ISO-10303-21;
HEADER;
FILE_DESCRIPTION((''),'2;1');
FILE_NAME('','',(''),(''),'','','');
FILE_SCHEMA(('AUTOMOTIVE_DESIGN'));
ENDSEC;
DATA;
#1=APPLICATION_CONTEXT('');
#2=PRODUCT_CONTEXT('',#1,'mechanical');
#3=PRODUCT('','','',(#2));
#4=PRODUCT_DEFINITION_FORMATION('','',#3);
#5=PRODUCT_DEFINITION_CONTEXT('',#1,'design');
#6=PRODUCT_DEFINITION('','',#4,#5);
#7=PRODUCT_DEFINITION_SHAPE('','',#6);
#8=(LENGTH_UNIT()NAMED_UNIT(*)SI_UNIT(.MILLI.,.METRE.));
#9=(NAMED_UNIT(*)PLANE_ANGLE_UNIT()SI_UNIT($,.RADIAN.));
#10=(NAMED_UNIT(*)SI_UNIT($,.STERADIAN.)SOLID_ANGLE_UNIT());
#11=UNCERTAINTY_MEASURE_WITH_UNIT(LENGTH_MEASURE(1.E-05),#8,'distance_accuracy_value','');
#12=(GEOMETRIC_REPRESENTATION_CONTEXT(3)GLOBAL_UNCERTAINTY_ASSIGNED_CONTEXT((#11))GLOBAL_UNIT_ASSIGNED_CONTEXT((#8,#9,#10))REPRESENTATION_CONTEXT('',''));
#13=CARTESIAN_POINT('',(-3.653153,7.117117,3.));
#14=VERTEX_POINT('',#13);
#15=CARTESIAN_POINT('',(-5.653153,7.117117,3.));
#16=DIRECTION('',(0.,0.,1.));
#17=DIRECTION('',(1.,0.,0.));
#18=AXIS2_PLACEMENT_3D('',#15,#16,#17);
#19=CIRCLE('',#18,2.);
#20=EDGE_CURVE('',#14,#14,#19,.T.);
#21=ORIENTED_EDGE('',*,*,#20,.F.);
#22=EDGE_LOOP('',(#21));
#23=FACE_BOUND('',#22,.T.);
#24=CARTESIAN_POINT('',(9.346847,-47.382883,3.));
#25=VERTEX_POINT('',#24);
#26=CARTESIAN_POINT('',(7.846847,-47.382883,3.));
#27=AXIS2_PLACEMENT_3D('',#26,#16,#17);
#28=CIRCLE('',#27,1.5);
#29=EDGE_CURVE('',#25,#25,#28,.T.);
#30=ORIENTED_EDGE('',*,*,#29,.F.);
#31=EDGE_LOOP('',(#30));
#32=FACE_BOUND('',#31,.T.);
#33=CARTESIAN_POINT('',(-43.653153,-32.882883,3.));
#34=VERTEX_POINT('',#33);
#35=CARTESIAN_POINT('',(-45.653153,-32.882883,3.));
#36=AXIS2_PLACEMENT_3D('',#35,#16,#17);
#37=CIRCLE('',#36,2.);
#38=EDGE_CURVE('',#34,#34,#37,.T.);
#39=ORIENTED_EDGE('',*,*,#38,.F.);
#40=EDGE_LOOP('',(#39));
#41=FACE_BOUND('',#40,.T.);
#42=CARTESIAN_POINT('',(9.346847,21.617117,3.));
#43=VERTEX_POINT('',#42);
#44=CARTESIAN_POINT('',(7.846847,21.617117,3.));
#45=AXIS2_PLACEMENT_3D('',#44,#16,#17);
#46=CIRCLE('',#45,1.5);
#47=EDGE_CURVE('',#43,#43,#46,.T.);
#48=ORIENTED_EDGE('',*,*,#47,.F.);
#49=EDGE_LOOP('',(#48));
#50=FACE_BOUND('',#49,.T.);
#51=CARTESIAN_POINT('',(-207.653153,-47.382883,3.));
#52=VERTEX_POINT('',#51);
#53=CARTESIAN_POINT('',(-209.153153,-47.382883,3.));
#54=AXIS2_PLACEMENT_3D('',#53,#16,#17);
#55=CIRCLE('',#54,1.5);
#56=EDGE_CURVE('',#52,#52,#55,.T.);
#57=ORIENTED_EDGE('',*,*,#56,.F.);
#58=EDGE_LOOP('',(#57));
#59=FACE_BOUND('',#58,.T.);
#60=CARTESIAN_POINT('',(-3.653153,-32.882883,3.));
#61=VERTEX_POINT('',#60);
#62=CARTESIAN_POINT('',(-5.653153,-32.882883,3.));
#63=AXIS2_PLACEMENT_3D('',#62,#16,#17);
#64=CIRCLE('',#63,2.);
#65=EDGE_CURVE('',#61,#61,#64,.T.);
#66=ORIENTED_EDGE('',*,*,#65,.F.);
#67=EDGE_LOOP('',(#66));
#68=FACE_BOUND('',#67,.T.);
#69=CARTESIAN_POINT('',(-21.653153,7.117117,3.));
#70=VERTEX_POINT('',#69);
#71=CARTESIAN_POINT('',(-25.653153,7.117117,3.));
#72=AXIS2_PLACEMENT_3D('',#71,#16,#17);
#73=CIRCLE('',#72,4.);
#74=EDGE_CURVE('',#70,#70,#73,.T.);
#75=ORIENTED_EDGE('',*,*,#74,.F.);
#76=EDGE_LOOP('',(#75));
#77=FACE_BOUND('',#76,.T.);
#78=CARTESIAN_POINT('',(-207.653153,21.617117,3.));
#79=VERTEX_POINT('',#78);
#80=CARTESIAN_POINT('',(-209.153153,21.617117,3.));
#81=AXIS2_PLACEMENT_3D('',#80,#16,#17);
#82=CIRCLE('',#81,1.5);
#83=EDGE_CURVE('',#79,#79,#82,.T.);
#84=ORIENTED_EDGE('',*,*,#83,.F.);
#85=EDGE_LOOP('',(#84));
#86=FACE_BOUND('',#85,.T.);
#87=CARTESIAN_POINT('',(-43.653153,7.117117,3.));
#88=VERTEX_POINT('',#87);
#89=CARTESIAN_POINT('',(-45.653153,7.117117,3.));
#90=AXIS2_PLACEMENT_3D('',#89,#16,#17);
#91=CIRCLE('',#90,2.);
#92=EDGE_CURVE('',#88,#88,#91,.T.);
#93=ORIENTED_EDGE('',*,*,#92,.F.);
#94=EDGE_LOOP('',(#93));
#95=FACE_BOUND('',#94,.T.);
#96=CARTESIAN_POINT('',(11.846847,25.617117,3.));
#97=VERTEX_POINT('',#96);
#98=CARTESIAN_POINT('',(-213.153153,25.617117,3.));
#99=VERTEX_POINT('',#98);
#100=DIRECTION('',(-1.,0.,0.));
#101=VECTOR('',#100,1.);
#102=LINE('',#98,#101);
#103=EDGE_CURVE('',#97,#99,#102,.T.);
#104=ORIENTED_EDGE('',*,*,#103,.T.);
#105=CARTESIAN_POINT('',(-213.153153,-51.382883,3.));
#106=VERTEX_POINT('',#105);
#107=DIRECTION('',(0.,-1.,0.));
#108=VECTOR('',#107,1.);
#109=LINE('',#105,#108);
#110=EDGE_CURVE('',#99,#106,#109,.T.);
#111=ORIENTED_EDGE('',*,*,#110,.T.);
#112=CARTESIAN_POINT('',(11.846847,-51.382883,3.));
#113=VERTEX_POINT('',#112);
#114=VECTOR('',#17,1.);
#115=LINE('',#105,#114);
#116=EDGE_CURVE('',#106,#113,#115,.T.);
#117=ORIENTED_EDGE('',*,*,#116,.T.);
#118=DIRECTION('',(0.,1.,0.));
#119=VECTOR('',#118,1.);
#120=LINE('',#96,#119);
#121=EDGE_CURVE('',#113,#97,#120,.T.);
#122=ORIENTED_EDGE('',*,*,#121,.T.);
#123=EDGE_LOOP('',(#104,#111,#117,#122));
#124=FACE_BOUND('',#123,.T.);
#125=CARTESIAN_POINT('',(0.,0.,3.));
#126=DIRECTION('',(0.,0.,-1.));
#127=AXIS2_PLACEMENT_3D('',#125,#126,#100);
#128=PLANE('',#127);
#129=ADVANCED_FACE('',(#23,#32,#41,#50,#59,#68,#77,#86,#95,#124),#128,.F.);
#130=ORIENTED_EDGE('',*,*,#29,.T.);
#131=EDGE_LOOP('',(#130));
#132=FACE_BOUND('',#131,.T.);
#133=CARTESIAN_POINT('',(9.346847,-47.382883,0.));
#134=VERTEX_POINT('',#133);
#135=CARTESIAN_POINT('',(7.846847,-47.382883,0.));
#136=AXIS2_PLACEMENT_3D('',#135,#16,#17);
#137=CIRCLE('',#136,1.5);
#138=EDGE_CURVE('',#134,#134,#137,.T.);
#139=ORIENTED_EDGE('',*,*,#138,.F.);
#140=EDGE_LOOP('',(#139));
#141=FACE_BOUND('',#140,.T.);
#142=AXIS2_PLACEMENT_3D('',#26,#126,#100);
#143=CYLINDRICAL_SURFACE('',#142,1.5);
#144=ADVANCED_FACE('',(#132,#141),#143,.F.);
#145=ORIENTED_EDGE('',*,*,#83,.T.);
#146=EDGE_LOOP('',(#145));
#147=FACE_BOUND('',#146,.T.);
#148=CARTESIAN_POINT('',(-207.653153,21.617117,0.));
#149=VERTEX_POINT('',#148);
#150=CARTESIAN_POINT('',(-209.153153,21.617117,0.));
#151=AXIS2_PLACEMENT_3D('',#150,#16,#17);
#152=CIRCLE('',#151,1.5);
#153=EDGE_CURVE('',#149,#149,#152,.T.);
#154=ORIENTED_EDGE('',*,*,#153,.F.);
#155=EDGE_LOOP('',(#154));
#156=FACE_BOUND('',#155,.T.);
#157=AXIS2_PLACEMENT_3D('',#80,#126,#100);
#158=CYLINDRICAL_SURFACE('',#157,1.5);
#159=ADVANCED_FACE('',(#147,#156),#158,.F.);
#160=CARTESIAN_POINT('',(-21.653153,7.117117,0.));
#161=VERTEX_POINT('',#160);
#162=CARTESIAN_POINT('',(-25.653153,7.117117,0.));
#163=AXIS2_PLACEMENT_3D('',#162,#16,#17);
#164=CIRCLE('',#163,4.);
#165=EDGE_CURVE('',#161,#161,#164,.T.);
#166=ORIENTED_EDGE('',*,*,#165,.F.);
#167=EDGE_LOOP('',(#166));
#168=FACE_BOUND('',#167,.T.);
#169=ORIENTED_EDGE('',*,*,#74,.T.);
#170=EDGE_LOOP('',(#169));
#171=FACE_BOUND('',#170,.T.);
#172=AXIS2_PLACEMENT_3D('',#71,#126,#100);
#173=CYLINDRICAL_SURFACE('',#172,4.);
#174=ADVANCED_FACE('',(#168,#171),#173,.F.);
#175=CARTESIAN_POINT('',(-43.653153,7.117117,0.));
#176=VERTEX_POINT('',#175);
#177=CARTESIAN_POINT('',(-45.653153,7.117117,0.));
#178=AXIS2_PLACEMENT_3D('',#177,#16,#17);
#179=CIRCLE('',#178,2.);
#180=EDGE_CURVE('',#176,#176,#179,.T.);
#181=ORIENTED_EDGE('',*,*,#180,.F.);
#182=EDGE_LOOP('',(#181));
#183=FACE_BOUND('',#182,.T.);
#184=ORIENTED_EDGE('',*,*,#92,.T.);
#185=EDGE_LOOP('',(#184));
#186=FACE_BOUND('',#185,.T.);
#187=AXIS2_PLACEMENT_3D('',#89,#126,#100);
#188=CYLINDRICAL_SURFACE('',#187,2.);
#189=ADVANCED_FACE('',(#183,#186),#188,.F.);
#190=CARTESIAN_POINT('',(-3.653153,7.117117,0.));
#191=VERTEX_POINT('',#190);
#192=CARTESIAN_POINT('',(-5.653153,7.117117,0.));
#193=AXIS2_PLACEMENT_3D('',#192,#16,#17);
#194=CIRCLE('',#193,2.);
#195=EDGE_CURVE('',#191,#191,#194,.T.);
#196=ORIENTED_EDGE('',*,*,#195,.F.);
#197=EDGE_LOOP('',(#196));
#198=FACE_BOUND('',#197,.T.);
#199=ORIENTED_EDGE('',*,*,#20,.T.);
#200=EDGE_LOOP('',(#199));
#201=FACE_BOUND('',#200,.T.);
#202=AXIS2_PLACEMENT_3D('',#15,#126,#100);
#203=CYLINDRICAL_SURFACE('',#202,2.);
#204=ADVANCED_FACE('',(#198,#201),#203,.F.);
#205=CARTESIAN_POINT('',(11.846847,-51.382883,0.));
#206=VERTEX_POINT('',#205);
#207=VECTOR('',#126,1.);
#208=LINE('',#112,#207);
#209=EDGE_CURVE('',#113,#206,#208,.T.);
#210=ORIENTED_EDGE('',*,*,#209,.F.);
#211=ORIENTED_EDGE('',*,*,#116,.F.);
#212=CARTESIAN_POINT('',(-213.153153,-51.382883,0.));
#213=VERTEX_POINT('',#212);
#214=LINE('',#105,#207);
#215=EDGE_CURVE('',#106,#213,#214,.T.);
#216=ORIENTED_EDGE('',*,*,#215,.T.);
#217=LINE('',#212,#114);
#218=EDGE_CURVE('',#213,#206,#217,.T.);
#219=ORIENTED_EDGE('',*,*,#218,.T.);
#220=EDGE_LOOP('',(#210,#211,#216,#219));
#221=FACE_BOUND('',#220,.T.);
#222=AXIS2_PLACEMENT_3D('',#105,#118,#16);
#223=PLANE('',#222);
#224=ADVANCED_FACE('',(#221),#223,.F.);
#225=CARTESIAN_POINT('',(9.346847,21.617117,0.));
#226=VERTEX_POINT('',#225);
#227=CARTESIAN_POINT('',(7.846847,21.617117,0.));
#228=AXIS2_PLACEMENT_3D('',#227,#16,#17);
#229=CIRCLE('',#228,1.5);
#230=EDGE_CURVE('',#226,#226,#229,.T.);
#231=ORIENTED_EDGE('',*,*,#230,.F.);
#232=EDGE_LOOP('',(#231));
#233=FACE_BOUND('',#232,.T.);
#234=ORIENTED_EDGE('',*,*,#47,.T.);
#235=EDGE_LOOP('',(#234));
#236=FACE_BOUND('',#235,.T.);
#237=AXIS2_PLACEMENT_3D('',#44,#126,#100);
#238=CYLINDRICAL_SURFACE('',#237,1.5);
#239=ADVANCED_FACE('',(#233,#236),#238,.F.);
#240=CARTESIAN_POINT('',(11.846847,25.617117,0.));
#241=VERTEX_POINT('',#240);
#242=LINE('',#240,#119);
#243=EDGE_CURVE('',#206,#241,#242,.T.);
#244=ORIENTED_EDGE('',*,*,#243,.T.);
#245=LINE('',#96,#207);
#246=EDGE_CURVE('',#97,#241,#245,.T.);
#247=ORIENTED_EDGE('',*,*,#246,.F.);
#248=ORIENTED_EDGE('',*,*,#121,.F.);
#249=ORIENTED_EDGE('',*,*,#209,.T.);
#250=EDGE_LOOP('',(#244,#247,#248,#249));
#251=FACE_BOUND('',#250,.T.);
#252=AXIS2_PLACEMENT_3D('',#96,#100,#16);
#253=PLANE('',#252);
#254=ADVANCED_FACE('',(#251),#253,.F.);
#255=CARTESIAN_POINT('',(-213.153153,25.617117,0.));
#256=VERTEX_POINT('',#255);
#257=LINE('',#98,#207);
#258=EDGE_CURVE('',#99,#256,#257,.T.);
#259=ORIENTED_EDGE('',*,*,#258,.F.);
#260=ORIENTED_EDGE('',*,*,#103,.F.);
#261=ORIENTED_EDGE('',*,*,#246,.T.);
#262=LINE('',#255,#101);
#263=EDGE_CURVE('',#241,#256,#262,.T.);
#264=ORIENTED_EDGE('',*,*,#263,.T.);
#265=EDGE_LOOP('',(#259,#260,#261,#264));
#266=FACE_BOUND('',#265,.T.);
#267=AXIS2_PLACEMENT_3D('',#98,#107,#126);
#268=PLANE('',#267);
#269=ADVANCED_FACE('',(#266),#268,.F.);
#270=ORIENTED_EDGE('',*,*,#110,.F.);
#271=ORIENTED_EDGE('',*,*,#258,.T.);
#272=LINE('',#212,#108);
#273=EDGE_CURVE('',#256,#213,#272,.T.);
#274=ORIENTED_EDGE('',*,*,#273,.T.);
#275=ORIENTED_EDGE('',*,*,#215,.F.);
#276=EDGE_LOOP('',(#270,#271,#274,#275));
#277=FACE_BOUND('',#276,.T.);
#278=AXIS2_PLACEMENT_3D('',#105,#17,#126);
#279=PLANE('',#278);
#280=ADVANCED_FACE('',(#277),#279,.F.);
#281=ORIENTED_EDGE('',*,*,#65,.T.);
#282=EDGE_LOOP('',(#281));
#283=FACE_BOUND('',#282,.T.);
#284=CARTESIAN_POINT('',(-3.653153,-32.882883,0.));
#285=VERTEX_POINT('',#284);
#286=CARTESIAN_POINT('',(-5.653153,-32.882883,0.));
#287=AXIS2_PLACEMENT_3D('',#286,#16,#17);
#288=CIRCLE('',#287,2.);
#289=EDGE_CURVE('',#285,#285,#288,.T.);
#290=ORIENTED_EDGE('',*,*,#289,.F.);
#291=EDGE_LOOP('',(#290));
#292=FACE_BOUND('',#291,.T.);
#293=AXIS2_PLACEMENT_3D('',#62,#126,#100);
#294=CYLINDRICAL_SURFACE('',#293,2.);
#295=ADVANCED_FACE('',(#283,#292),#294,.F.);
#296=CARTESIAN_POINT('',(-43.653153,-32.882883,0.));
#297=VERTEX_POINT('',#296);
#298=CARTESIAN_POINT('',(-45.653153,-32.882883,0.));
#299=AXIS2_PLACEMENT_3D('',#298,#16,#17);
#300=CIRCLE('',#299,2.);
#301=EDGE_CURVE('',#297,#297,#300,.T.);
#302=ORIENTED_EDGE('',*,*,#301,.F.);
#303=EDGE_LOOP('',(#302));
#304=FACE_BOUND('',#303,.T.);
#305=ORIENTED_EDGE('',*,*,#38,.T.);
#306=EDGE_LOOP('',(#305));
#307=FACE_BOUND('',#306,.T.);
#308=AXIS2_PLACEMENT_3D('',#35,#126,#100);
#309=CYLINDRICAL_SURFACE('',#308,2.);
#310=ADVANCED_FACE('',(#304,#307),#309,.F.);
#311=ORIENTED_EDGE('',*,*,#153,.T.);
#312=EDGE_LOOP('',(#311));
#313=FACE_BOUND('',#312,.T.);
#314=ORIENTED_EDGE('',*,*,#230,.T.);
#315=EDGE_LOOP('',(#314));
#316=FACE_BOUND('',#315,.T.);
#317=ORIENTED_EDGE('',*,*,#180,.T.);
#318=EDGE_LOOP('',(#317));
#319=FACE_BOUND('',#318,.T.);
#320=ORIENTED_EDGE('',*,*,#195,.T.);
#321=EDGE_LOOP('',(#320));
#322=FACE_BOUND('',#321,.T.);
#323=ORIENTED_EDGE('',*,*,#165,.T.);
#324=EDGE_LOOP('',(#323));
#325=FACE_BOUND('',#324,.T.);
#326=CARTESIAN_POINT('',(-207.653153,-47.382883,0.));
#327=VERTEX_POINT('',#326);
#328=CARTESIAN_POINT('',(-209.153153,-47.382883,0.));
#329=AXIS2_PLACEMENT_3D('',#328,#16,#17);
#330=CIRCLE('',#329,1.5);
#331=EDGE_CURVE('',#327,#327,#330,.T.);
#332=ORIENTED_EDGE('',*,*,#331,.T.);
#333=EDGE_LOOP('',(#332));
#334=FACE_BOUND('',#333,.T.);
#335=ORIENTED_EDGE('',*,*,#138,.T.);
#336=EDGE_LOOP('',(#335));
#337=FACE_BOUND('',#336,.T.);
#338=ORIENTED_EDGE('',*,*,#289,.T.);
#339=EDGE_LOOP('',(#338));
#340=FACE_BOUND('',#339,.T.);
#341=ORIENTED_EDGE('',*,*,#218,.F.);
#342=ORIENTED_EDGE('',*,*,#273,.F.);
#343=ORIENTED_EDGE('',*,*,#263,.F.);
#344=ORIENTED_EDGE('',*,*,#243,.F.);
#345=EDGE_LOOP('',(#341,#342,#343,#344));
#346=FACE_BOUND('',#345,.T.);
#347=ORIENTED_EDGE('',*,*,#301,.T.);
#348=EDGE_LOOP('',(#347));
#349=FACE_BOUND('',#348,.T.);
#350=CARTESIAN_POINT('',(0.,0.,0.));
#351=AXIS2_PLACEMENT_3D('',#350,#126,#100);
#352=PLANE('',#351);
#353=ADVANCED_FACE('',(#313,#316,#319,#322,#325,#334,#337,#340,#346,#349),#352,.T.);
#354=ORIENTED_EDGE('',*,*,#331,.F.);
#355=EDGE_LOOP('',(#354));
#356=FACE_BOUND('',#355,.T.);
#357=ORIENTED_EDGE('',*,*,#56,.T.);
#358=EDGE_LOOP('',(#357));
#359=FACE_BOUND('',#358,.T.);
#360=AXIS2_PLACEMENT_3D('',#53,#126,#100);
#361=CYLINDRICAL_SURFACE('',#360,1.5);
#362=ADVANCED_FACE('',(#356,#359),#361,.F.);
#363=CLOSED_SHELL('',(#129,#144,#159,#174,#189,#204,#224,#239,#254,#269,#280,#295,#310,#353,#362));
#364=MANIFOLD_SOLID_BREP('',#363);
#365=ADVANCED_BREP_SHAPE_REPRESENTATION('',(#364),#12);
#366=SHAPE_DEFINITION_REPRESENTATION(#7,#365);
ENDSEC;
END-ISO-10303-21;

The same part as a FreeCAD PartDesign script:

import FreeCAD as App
import Part
import Sketcher


def add_polygon(sketch, points):
    """Adds a closed chain of lines whose ends are joined by coincident constraints."""
    first, n = sketch.GeometryCount, len(points)
    for a, b in zip(points, points[1:] + points[:1]):
        sketch.addGeometry(Part.LineSegment(App.Vector(*a, 0), App.Vector(*b, 0)), False)
    for i in range(n):
        sketch.addConstraint(Sketcher.Constraint("Coincident", first + i, 2, first + (i + 1) % n, 1))

doc = App.newDocument("Part")
body = doc.addObject("PartDesign::Body", "Body")

sketch1 = body.newObject("Sketcher::SketchObject", "Sketch")
sketch1.AttachmentSupport = (doc.getObject("XY_Plane"), [""])
sketch1.MapMode = "FlatFace"
add_polygon(sketch1, [(-213.153153, 25.617117), (-213.153153, -51.382883), (11.846847, -51.382883), (11.846847, 25.617117)])
sketch1.addGeometry(Part.Circle(App.Vector(-209.153153, -47.382883, 0), App.Vector(0, 0, 1), 1.5), False)
sketch1.addGeometry(Part.Circle(App.Vector(7.846847, -47.382883, 0), App.Vector(0, 0, 1), 1.5), False)
sketch1.addGeometry(Part.Circle(App.Vector(-45.653153, -32.882883, 0), App.Vector(0, 0, 1), 2), False)
sketch1.addGeometry(Part.Circle(App.Vector(-5.653153, -32.882883, 0), App.Vector(0, 0, 1), 2), False)
sketch1.addGeometry(Part.Circle(App.Vector(-209.153153, 21.617117, 0), App.Vector(0, 0, 1), 1.5), False)
sketch1.addGeometry(Part.Circle(App.Vector(-45.653153, 7.117117, 0), App.Vector(0, 0, 1), 2), False)
sketch1.addGeometry(Part.Circle(App.Vector(-25.653153, 7.117117, 0), App.Vector(0, 0, 1), 4), False)
sketch1.addGeometry(Part.Circle(App.Vector(-5.653153, 7.117117, 0), App.Vector(0, 0, 1), 2), False)
sketch1.addGeometry(Part.Circle(App.Vector(7.846847, 21.617117, 0), App.Vector(0, 0, 1), 1.5), False)
sketch1.addConstraint(Sketcher.Constraint("Vertical", 0))
sketch1.addConstraint(Sketcher.Constraint("Horizontal", 1))
sketch1.addConstraint(Sketcher.Constraint("Vertical", 2))
sketch1.addConstraint(Sketcher.Constraint("Horizontal", 3))
sketch1.addConstraint(Sketcher.Constraint("Equal", 4, 5))
sketch1.addConstraint(Sketcher.Constraint("Equal", 6, 7))
sketch1.addConstraint(Sketcher.Constraint("Equal", 5, 8))
sketch1.addConstraint(Sketcher.Constraint("Equal", 7, 9))
sketch1.addConstraint(Sketcher.Constraint("Equal", 9, 11))
sketch1.addConstraint(Sketcher.Constraint("Equal", 8, 12))
sketch1.addConstraint(Sketcher.Constraint("Horizontal", 4, 3, 5, 3))
sketch1.addConstraint(Sketcher.Constraint("Horizontal", 6, 3, 7, 3))
sketch1.addConstraint(Sketcher.Constraint("Horizontal", 9, 3, 10, 3))
sketch1.addConstraint(Sketcher.Constraint("Horizontal", 10, 3, 11, 3))
sketch1.addConstraint(Sketcher.Constraint("Horizontal", 8, 3, 12, 3))
sketch1.addConstraint(Sketcher.Constraint("Vertical", 4, 3, 8, 3))
sketch1.addConstraint(Sketcher.Constraint("Vertical", 6, 3, 9, 3))
sketch1.addConstraint(Sketcher.Constraint("Vertical", 7, 3, 11, 3))
sketch1.addConstraint(Sketcher.Constraint("Vertical", 5, 3, 12, 3))
sketch1.addConstraint(Sketcher.Constraint("Diameter", 4, 3.0))
sketch1.addConstraint(Sketcher.Constraint("Diameter", 6, 4.0))
sketch1.addConstraint(Sketcher.Constraint("Diameter", 10, 8.0))
sketch1.addConstraint(Sketcher.Constraint("DistanceX", 1, 1, 1, 2, 225.0))
sketch1.addConstraint(Sketcher.Constraint("DistanceY", 0, 2, 0, 1, 77.0))
sketch1.addConstraint(Sketcher.Constraint("DistanceX", 4, 3, 5, 3, 217.0))
sketch1.addConstraint(Sketcher.Constraint("DistanceX", 6, 3, 7, 3, 40.0))
sketch1.addConstraint(Sketcher.Constraint("DistanceY", 4, 3, 8, 3, 69.0))
sketch1.addConstraint(Sketcher.Constraint("DistanceY", 6, 3, 9, 3, 40.0))
sketch1.addConstraint(Sketcher.Constraint("DistanceX", 9, 3, 10, 3, 20.0))
sketch1.addConstraint(Sketcher.Constraint("DistanceX", 0, 2, 4, 3, 4.0))
sketch1.addConstraint(Sketcher.Constraint("DistanceY", 0, 2, 4, 3, 4.0))
sketch1.addConstraint(Sketcher.Constraint("DistanceX", 6, 3, 5, 3, 53.5))
sketch1.addConstraint(Sketcher.Constraint("DistanceY", 5, 3, 6, 3, 14.5))
sketch1.addConstraint(Sketcher.Constraint("DistanceX", 4, 3, -1, 1, 209.153153))
sketch1.addConstraint(Sketcher.Constraint("DistanceY", 4, 3, -1, 1, 47.382883))
pad1 = body.newObject("PartDesign::Pad", "Pad")
pad1.Profile = sketch1
pad1.Length = 3

doc.recompute()
